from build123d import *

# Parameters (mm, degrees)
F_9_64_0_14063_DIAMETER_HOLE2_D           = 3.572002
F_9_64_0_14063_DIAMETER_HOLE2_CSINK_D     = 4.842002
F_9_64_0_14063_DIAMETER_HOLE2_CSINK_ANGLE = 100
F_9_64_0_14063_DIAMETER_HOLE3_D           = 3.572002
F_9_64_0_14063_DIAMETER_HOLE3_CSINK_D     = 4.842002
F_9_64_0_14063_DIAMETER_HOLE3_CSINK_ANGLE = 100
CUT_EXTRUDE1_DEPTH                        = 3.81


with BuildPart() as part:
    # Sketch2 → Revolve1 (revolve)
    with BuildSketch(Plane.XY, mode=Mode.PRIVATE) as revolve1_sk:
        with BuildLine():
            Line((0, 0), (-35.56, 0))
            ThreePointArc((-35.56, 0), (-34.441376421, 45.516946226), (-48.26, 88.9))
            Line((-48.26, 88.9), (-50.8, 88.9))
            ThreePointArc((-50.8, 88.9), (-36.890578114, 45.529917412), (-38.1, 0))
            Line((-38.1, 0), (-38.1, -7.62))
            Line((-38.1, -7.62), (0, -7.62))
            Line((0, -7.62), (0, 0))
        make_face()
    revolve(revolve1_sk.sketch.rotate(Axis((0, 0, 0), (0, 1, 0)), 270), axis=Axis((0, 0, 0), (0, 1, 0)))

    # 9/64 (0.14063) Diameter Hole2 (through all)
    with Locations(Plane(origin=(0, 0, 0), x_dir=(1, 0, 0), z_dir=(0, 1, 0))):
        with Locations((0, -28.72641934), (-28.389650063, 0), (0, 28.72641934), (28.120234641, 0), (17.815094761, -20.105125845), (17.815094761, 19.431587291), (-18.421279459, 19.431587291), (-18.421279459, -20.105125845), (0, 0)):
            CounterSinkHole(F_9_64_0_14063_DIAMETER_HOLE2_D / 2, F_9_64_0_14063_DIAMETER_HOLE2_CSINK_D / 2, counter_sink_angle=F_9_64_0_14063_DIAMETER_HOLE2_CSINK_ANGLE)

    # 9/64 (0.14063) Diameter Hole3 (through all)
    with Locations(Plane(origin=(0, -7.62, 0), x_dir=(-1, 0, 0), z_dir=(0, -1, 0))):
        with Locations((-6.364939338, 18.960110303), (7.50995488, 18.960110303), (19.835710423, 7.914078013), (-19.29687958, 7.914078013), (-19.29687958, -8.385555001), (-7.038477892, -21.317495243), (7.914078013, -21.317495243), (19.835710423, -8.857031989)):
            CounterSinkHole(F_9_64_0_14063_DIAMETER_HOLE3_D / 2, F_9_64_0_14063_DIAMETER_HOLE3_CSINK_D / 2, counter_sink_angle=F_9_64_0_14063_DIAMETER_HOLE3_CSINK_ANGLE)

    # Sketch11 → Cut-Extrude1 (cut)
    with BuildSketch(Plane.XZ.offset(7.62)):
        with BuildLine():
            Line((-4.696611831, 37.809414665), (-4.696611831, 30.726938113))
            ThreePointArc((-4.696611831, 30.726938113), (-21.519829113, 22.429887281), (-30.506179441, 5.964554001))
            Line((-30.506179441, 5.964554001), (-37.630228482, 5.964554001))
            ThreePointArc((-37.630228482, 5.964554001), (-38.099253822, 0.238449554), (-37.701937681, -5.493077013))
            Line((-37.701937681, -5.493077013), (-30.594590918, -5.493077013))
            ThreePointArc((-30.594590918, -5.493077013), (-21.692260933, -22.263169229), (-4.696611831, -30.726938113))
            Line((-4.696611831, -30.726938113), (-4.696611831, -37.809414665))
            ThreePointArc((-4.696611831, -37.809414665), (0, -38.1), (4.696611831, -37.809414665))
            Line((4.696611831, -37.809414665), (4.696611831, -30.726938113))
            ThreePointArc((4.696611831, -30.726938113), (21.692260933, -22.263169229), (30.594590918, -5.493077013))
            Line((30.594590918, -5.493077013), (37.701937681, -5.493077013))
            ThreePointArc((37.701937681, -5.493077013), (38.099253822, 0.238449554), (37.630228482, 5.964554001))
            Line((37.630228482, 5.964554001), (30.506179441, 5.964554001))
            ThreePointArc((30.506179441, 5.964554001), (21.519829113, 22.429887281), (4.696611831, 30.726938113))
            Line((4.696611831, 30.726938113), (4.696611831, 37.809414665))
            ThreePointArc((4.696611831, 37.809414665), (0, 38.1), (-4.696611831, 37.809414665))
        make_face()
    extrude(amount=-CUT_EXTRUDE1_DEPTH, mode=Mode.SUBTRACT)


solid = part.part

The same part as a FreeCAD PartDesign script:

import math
import FreeCAD as App
import Part
import Sketcher

V = App.Vector
Q = App.Units.Quantity

doc = App.newDocument("Part")
body = doc.addObject("PartDesign::Body", "Body")

# Sketch on XY plane
sketch1 = body.newObject("Sketcher::SketchObject", "Sketch")
sketch1.AttachmentSupport = (doc.getObject("XY_Plane"), [""])
sketch1.MapMode = "FlatFace"
sketch1.addGeometry(Part.LineSegment(V(0, 0, 0), V(-35.56, 0, 0)), False)
sketch1.addGeometry(Part.ArcOfCircle(Part.Circle(V(-170.449224, 26.087254, 0), V(0, 0, 1), 137.388674), math.radians(-10.945735), math.radians(27.20594)), False)
sketch1.addGeometry(Part.LineSegment(V(-48.26, 88.9, 0), V(-50.8, 88.9, 0)), False)
sketch1.addGeometry(Part.ArcOfCircle(Part.Circle(V(-171.355051, 26.320707, 0), V(0, 0, 1), 135.829629), math.radians(-11.173309), math.radians(27.433514)), False)
sketch1.addGeometry(Part.LineSegment(V(-38.1, 0, 0), V(-38.1, -7.62, 0)), False)
sketch1.addGeometry(Part.LineSegment(V(-38.1, -7.62, 0), V(0, -7.62, 0)), False)
sketch1.addGeometry(Part.LineSegment(V(0, -7.62, 0), V(0, 0, 0)), False)
sketch1.addConstraint(Sketcher.Constraint("Coincident", 0, 2, 1, 1))
sketch1.addConstraint(Sketcher.Constraint("Coincident", 1, 2, 2, 1))
sketch1.addConstraint(Sketcher.Constraint("Coincident", 2, 2, 3, 2))
sketch1.addConstraint(Sketcher.Constraint("Coincident", 3, 1, 4, 1))
sketch1.addConstraint(Sketcher.Constraint("Coincident", 4, 2, 5, 1))
sketch1.addConstraint(Sketcher.Constraint("Coincident", 5, 2, 6, 1))
sketch1.addConstraint(Sketcher.Constraint("Coincident", 6, 2, 0, 1))
sketch1.addConstraint(Sketcher.Constraint("Horizontal", 0))
sketch1.addConstraint(Sketcher.Constraint("Horizontal", 2))
sketch1.addConstraint(Sketcher.Constraint("Vertical", 4))
sketch1.addConstraint(Sketcher.Constraint("Horizontal", 5))
sketch1.addConstraint(Sketcher.Constraint("Vertical", 6))
sketch1.addConstraint(Sketcher.Constraint("Coincident", 6, 2, -1, 1))
sketch1.addConstraint(Sketcher.Constraint("PointOnObject", 3, 1, -1))
sketch1.addConstraint(Sketcher.Constraint("DistanceX", 0, 2, 0, 1, Q("1.4 in")))
sketch1.addConstraint(Sketcher.Constraint("DistanceX", 2, 2, 2, 1, Q("0.1 in")))
sketch1.addConstraint(Sketcher.Constraint("DistanceX", 5, 1, 5, 2, Q("1.5 in")))
sketch1.addConstraint(Sketcher.Constraint("DistanceY", 4, 2, 4, 1, Q("0.3 in")))
sketch1.addConstraint(Sketcher.Constraint("DistanceX", 2, 2, -1, 1, Q("2 in")))
sketch1.addConstraint(Sketcher.Constraint("DistanceY", -1, 1, 1, 2, Q("3.5 in")))
sketch1.addConstraint(Sketcher.Constraint("Radius", 3, 135.829629))
sketch1.addConstraint(Sketcher.Constraint("Radius", 1, 137.388674))
revolution = body.newObject("PartDesign::Revolution", "Revolution")
revolution.Profile = sketch1
revolution.ReferenceAxis = (sketch1, ["V_Axis"])
revolution.Angle = 360

# Sketch on XZ plane
sketch2 = body.newObject("Sketcher::SketchObject", "Sketch001")
sketch2.AttachmentSupport = (doc.getObject("XZ_Plane"), [""])
sketch2.MapMode = "FlatFace"
sketch2.addGeometry(Part.Circle(V(0, 28.726419, 0), V(0, 0, 1), 1.786001), False)
sketch2.addGeometry(Part.Circle(V(-28.38965, 0, 0), V(0, 0, 1), 1.786001), False)
sketch2.addGeometry(Part.Circle(V(0, -28.726419, 0), V(0, 0, 1), 1.786001), False)
sketch2.addGeometry(Part.Circle(V(28.120235, 0, 0), V(0, 0, 1), 1.786001), False)
sketch2.addGeometry(Part.Circle(V(17.815095, 20.105126, 0), V(0, 0, 1), 1.786001), False)
sketch2.addGeometry(Part.Circle(V(17.815095, -19.431587, 0), V(0, 0, 1), 1.786001), False)
sketch2.addGeometry(Part.Circle(V(-18.421279, -19.431587, 0), V(0, 0, 1), 1.786001), False)
sketch2.addGeometry(Part.Circle(V(-18.421279, 20.105126, 0), V(0, 0, 1), 1.786001), False)
sketch2.addGeometry(Part.Circle(V(0, 0, 0), V(0, 0, 1), 1.786001), False)
sketch2.addConstraint(Sketcher.Constraint("Coincident", 8, 3, -1, 1))
sketch2.addConstraint(Sketcher.Constraint("Equal", 0, 1))
sketch2.addConstraint(Sketcher.Constraint("Equal", 1, 2))
sketch2.addConstraint(Sketcher.Constraint("Equal", 2, 3))
sketch2.addConstraint(Sketcher.Constraint("Equal", 3, 4))
sketch2.addConstraint(Sketcher.Constraint("Equal", 4, 5))
sketch2.addConstraint(Sketcher.Constraint("Equal", 5, 6))
sketch2.addConstraint(Sketcher.Constraint("Equal", 6, 7))
sketch2.addConstraint(Sketcher.Constraint("Equal", 7, 8))
sketch2.addConstraint(Sketcher.Constraint("Symmetric", 0, 3, 2, 3, -1, 1))
sketch2.addConstraint(Sketcher.Constraint("PointOnObject", 0, 3, -2))
sketch2.addConstraint(Sketcher.Constraint("PointOnObject", 1, 3, -1))
sketch2.addConstraint(Sketcher.Constraint("PointOnObject", 3, 3, -1))
sketch2.addConstraint(Sketcher.Constraint("Horizontal", 5, 3, 6, 3))
sketch2.addConstraint(Sketcher.Constraint("Horizontal", 4, 3, 7, 3))
sketch2.addConstraint(Sketcher.Constraint("Vertical", 4, 3, 5, 3))
sketch2.addConstraint(Sketcher.Constraint("Vertical", 6, 3, 7, 3))
sketch2.addConstraint(Sketcher.Constraint("Diameter", 0, 3.572002))
sketch2.addConstraint(Sketcher.Constraint("DistanceY", -1, 1, 0, 3, 28.726419))
sketch2.addConstraint(Sketcher.Constraint("DistanceX", 1, 3, -1, 1, 28.38965))
sketch2.addConstraint(Sketcher.Constraint("DistanceX", 6, 3, -1, 1, 18.421279))
sketch2.addConstraint(Sketcher.Constraint("DistanceX", 4, 3, 3, 3, 10.30514))
sketch2.addConstraint(Sketcher.Constraint("DistanceX", -1, 1, 3, 3, 28.120235))
sketch2.addConstraint(Sketcher.Constraint("DistanceY", -1, 1, 4, 3, 20.105126))
sketch2.addConstraint(Sketcher.Constraint("DistanceY", 5, 3, -1, 1, 19.431587))
doc.recompute()
hole = body.newObject("PartDesign::Hole", "Hole")
hole.Profile = sketch2
hole.ThreadType = "None"
hole.Diameter = 3.572002
hole.DepthType = "ThroughAll"
hole.HoleCutType = "Countersink"
hole.HoleCutDiameter = 4.842002
hole.HoleCutCountersinkAngle = 100
hole.Reversed = True

# Sketch on XZ plane
sketch3 = body.newObject("Sketcher::SketchObject", "Sketch002")
sketch3.AttachmentSupport = (doc.getObject("XZ_Plane"), [""])
sketch3.MapMode = "FlatFace"
sketch3.AttachmentOffset = App.Placement(V(0, 0, 0.3 * 25.4), App.Rotation())
sketch3.addGeometry(Part.Circle(V(6.364939, -18.96011, 0), V(0, 0, 1), 1.786001), False)
sketch3.addGeometry(Part.Circle(V(-7.509955, -18.96011, 0), V(0, 0, 1), 1.786001), False)
sketch3.addGeometry(Part.Circle(V(-19.83571, -7.914078, 0), V(0, 0, 1), 1.786001), False)
sketch3.addGeometry(Part.Circle(V(19.29688, -7.914078, 0), V(0, 0, 1), 1.786001), False)
sketch3.addGeometry(Part.Circle(V(19.29688, 8.385555, 0), V(0, 0, 1), 1.786001), False)
sketch3.addGeometry(Part.Circle(V(7.038478, 21.317495, 0), V(0, 0, 1), 1.786001), False)
sketch3.addGeometry(Part.Circle(V(-7.914078, 21.317495, 0), V(0, 0, 1), 1.786001), False)
sketch3.addGeometry(Part.Circle(V(-19.83571, 8.857032, 0), V(0, 0, 1), 1.786001), False)
sketch3.addConstraint(Sketcher.Constraint("Equal", 0, 1))
sketch3.addConstraint(Sketcher.Constraint("Equal", 1, 2))
sketch3.addConstraint(Sketcher.Constraint("Equal", 2, 3))
sketch3.addConstraint(Sketcher.Constraint("Equal", 3, 4))
sketch3.addConstraint(Sketcher.Constraint("Equal", 4, 5))
sketch3.addConstraint(Sketcher.Constraint("Equal", 5, 6))
sketch3.addConstraint(Sketcher.Constraint("Equal", 6, 7))
sketch3.addConstraint(Sketcher.Constraint("Horizontal", 0, 3, 1, 3))
sketch3.addConstraint(Sketcher.Constraint("Horizontal", 2, 3, 3, 3))
sketch3.addConstraint(Sketcher.Constraint("Horizontal", 5, 3, 6, 3))
sketch3.addConstraint(Sketcher.Constraint("Vertical", 3, 3, 4, 3))
sketch3.addConstraint(Sketcher.Constraint("Vertical", 2, 3, 7, 3))
sketch3.addConstraint(Sketcher.Constraint("Diameter", 0, 3.572002))
sketch3.addConstraint(Sketcher.Constraint("DistanceX", 5, 3, 4, 3, 12.258402))
sketch3.addConstraint(Sketcher.Constraint("DistanceX", -1, 1, 0, 3, 6.364939))
sketch3.addConstraint(Sketcher.Constraint("DistanceY", 0, 3, -1, 1, 18.96011))
sketch3.addConstraint(Sketcher.Constraint("DistanceX", 2, 3, -1, 1, 19.83571))
sketch3.addConstraint(Sketcher.Constraint("DistanceY", 2, 3, -1, 1, 7.914078))
sketch3.addConstraint(Sketcher.Constraint("DistanceX", -1, 1, 3, 3, 19.29688))
sketch3.addConstraint(Sketcher.Constraint("DistanceX", 6, 3, -1, 1, 7.914078))
sketch3.addConstraint(Sketcher.Constraint("DistanceY", -1, 1, 7, 3, 8.857032))
sketch3.addConstraint(Sketcher.Constraint("DistanceY", 4, 3, 5, 3, 12.93194))
sketch3.addConstraint(Sketcher.Constraint("DistanceX", 1, 3, -1, 1, 7.509955))
sketch3.addConstraint(Sketcher.Constraint("DistanceY", -1, 1, 4, 3, 8.385555))
doc.recompute()
hole2 = body.newObject("PartDesign::Hole", "Hole001")
hole2.Profile = sketch3
hole2.ThreadType = "None"
hole2.Diameter = 3.572002
hole2.DepthType = "ThroughAll"
hole2.HoleCutType = "Countersink"
hole2.HoleCutDiameter = 4.842002
hole2.HoleCutCountersinkAngle = 100

# Sketch on XZ plane
sketch4 = body.newObject("Sketcher::SketchObject", "Sketch003")
sketch4.AttachmentSupport = (doc.getObject("XZ_Plane"), [""])
sketch4.MapMode = "FlatFace"
sketch4.AttachmentOffset = App.Placement(V(0, 0, 0.3 * 25.4), App.Rotation())
sketch4.addGeometry(Part.LineSegment(V(-4.696612, 37.809415, 0), V(-4.696612, 30.726938, 0)), False)
sketch4.addGeometry(Part.ArcOfCircle(Part.Circle(V(0, 0, 0), V(0, 0, 1), 31.083804), math.radians(98.690397), math.radians(168.937117)), False)
sketch4.addGeometry(Part.LineSegment(V(-30.506179, 5.964554, 0), V(-37.630228, 5.964554, 0)), False)
sketch4.addGeometry(Part.ArcOfCircle(Part.Circle(V(0, 0, 0), V(0, 0, 1), 38.1), math.radians(170.993299), math.radians(188.289523)), False)
sketch4.addGeometry(Part.LineSegment(V(-37.701938, -5.493077, 0), V(-30.594591, -5.493077, 0)), False)
sketch4.addGeometry(Part.ArcOfCircle(Part.Circle(V(0, 0, 0), V(0, 0, 1), 31.083804), math.radians(-169.821332), math.radians(-98.690397)), False)
sketch4.addGeometry(Part.LineSegment(V(-4.696612, -30.726938, 0), V(-4.696612, -37.809415, 0)), False)
sketch4.addGeometry(Part.ArcOfCircle(Part.Circle(V(0, 0, 0), V(0, 0, 1), 38.1), math.radians(-97.080899), math.radians(-82.919101)), False)
sketch4.addGeometry(Part.LineSegment(V(4.696612, -37.809415, 0), V(4.696612, -30.726938, 0)), False)
sketch4.addGeometry(Part.ArcOfCircle(Part.Circle(V(0, 0, 0), V(0, 0, 1), 31.083804), math.radians(-81.309603), math.radians(-10.178668)), False)
sketch4.addGeometry(Part.LineSegment(V(30.594591, -5.493077, 0), V(37.701938, -5.493077, 0)), False)
sketch4.addGeometry(Part.ArcOfCircle(Part.Circle(V(0, 0, 0), V(0, 0, 1), 38.1), math.radians(-8.289523), math.radians(9.006701)), False)
sketch4.addGeometry(Part.LineSegment(V(37.630228, 5.964554, 0), V(30.506179, 5.964554, 0)), False)
sketch4.addGeometry(Part.ArcOfCircle(Part.Circle(V(0, 0, 0), V(0, 0, 1), 31.083804), math.radians(11.062883), math.radians(81.309603)), False)
sketch4.addGeometry(Part.LineSegment(V(4.696612, 30.726938, 0), V(4.696612, 37.809415, 0)), False)
sketch4.addGeometry(Part.ArcOfCircle(Part.Circle(V(0, 0, 0), V(0, 0, 1), 38.1), math.radians(82.919101), math.radians(97.080899)), False)
sketch4.addConstraint(Sketcher.Constraint("Coincident", 0, 2, 1, 1))
sketch4.addConstraint(Sketcher.Constraint("Coincident", 1, 2, 2, 1))
sketch4.addConstraint(Sketcher.Constraint("Coincident", 2, 2, 3, 1))
sketch4.addConstraint(Sketcher.Constraint("Coincident", 3, 2, 4, 1))
sketch4.addConstraint(Sketcher.Constraint("Coincident", 4, 2, 5, 1))
sketch4.addConstraint(Sketcher.Constraint("Coincident", 5, 2, 6, 1))
sketch4.addConstraint(Sketcher.Constraint("Coincident", 6, 2, 7, 1))
sketch4.addConstraint(Sketcher.Constraint("Coincident", 7, 2, 8, 1))
sketch4.addConstraint(Sketcher.Constraint("Coincident", 8, 2, 9, 1))
sketch4.addConstraint(Sketcher.Constraint("Coincident", 9, 2, 10, 1))
sketch4.addConstraint(Sketcher.Constraint("Coincident", 10, 2, 11, 1))
sketch4.addConstraint(Sketcher.Constraint("Coincident", 11, 2, 12, 1))
sketch4.addConstraint(Sketcher.Constraint("Coincident", 12, 2, 13, 1))
sketch4.addConstraint(Sketcher.Constraint("Coincident", 13, 2, 14, 1))
sketch4.addConstraint(Sketcher.Constraint("Coincident", 14, 2, 15, 1))
sketch4.addConstraint(Sketcher.Constraint("Coincident", 15, 2, 0, 1))
sketch4.addConstraint(Sketcher.Constraint("Vertical", 0))
sketch4.addConstraint(Sketcher.Constraint("Horizontal", 2))
sketch4.addConstraint(Sketcher.Constraint("Horizontal", 4))
sketch4.addConstraint(Sketcher.Constraint("Vertical", 6))
sketch4.addConstraint(Sketcher.Constraint("Vertical", 8))
sketch4.addConstraint(Sketcher.Constraint("Horizontal", 10))
sketch4.addConstraint(Sketcher.Constraint("Horizontal", 12))
sketch4.addConstraint(Sketcher.Constraint("Vertical", 14))
sketch4.addConstraint(Sketcher.Constraint("Coincident", 1, 3, -1, 1))
sketch4.addConstraint(Sketcher.Constraint("Coincident", 3, 3, -1, 1))
sketch4.addConstraint(Sketcher.Constraint("Coincident", 5, 3, -1, 1))
sketch4.addConstraint(Sketcher.Constraint("Coincident", 7, 3, -1, 1))
sketch4.addConstraint(Sketcher.Constraint("Coincident", 9, 3, -1, 1))
sketch4.addConstraint(Sketcher.Constraint("Coincident", 11, 3, -1, 1))
sketch4.addConstraint(Sketcher.Constraint("Coincident", 13, 3, -1, 1))
sketch4.addConstraint(Sketcher.Constraint("Coincident", 15, 3, -1, 1))
sketch4.addConstraint(Sketcher.Constraint("Equal", 1, 5))
sketch4.addConstraint(Sketcher.Constraint("Equal", 3, 7))
sketch4.addConstraint(Sketcher.Constraint("Equal", 5, 9))
sketch4.addConstraint(Sketcher.Constraint("Equal", 7, 11))
sketch4.addConstraint(Sketcher.Constraint("Equal", 9, 13))
sketch4.addConstraint(Sketcher.Constraint("Equal", 11, 15))
sketch4.addConstraint(Sketcher.Constraint("Horizontal", 6, 2, 7, 2))
sketch4.addConstraint(Sketcher.Constraint("Horizontal", 4, 2, 9, 2))
sketch4.addConstraint(Sketcher.Constraint("Horizontal", 2, 2, 11, 2))
sketch4.addConstraint(Sketcher.Constraint("Horizontal", 0, 2, 13, 2))
sketch4.addConstraint(Sketcher.Constraint("Vertical", 0, 2, 5, 2))
sketch4.addConstraint(Sketcher.Constraint("Radius", 3, Q("1.5 in")))
sketch4.addConstraint(Sketcher.Constraint("Radius", 1, 31.083804))
sketch4.addConstraint(Sketcher.Constraint("DistanceX", 2, 2, 2, 1, 7.124049))
sketch4.addConstraint(Sketcher.Constraint("DistanceX", 4, 1, 4, 2, 7.107347))
sketch4.addConstraint(Sketcher.Constraint("DistanceY", 0, 2, 0, 1, 7.082477))
pocket1 = body.newObject("PartDesign::Pocket", "Pocket")
pocket1.Profile = sketch4
pocket1.Length = Q("0.15 in")

doc.recompute()
